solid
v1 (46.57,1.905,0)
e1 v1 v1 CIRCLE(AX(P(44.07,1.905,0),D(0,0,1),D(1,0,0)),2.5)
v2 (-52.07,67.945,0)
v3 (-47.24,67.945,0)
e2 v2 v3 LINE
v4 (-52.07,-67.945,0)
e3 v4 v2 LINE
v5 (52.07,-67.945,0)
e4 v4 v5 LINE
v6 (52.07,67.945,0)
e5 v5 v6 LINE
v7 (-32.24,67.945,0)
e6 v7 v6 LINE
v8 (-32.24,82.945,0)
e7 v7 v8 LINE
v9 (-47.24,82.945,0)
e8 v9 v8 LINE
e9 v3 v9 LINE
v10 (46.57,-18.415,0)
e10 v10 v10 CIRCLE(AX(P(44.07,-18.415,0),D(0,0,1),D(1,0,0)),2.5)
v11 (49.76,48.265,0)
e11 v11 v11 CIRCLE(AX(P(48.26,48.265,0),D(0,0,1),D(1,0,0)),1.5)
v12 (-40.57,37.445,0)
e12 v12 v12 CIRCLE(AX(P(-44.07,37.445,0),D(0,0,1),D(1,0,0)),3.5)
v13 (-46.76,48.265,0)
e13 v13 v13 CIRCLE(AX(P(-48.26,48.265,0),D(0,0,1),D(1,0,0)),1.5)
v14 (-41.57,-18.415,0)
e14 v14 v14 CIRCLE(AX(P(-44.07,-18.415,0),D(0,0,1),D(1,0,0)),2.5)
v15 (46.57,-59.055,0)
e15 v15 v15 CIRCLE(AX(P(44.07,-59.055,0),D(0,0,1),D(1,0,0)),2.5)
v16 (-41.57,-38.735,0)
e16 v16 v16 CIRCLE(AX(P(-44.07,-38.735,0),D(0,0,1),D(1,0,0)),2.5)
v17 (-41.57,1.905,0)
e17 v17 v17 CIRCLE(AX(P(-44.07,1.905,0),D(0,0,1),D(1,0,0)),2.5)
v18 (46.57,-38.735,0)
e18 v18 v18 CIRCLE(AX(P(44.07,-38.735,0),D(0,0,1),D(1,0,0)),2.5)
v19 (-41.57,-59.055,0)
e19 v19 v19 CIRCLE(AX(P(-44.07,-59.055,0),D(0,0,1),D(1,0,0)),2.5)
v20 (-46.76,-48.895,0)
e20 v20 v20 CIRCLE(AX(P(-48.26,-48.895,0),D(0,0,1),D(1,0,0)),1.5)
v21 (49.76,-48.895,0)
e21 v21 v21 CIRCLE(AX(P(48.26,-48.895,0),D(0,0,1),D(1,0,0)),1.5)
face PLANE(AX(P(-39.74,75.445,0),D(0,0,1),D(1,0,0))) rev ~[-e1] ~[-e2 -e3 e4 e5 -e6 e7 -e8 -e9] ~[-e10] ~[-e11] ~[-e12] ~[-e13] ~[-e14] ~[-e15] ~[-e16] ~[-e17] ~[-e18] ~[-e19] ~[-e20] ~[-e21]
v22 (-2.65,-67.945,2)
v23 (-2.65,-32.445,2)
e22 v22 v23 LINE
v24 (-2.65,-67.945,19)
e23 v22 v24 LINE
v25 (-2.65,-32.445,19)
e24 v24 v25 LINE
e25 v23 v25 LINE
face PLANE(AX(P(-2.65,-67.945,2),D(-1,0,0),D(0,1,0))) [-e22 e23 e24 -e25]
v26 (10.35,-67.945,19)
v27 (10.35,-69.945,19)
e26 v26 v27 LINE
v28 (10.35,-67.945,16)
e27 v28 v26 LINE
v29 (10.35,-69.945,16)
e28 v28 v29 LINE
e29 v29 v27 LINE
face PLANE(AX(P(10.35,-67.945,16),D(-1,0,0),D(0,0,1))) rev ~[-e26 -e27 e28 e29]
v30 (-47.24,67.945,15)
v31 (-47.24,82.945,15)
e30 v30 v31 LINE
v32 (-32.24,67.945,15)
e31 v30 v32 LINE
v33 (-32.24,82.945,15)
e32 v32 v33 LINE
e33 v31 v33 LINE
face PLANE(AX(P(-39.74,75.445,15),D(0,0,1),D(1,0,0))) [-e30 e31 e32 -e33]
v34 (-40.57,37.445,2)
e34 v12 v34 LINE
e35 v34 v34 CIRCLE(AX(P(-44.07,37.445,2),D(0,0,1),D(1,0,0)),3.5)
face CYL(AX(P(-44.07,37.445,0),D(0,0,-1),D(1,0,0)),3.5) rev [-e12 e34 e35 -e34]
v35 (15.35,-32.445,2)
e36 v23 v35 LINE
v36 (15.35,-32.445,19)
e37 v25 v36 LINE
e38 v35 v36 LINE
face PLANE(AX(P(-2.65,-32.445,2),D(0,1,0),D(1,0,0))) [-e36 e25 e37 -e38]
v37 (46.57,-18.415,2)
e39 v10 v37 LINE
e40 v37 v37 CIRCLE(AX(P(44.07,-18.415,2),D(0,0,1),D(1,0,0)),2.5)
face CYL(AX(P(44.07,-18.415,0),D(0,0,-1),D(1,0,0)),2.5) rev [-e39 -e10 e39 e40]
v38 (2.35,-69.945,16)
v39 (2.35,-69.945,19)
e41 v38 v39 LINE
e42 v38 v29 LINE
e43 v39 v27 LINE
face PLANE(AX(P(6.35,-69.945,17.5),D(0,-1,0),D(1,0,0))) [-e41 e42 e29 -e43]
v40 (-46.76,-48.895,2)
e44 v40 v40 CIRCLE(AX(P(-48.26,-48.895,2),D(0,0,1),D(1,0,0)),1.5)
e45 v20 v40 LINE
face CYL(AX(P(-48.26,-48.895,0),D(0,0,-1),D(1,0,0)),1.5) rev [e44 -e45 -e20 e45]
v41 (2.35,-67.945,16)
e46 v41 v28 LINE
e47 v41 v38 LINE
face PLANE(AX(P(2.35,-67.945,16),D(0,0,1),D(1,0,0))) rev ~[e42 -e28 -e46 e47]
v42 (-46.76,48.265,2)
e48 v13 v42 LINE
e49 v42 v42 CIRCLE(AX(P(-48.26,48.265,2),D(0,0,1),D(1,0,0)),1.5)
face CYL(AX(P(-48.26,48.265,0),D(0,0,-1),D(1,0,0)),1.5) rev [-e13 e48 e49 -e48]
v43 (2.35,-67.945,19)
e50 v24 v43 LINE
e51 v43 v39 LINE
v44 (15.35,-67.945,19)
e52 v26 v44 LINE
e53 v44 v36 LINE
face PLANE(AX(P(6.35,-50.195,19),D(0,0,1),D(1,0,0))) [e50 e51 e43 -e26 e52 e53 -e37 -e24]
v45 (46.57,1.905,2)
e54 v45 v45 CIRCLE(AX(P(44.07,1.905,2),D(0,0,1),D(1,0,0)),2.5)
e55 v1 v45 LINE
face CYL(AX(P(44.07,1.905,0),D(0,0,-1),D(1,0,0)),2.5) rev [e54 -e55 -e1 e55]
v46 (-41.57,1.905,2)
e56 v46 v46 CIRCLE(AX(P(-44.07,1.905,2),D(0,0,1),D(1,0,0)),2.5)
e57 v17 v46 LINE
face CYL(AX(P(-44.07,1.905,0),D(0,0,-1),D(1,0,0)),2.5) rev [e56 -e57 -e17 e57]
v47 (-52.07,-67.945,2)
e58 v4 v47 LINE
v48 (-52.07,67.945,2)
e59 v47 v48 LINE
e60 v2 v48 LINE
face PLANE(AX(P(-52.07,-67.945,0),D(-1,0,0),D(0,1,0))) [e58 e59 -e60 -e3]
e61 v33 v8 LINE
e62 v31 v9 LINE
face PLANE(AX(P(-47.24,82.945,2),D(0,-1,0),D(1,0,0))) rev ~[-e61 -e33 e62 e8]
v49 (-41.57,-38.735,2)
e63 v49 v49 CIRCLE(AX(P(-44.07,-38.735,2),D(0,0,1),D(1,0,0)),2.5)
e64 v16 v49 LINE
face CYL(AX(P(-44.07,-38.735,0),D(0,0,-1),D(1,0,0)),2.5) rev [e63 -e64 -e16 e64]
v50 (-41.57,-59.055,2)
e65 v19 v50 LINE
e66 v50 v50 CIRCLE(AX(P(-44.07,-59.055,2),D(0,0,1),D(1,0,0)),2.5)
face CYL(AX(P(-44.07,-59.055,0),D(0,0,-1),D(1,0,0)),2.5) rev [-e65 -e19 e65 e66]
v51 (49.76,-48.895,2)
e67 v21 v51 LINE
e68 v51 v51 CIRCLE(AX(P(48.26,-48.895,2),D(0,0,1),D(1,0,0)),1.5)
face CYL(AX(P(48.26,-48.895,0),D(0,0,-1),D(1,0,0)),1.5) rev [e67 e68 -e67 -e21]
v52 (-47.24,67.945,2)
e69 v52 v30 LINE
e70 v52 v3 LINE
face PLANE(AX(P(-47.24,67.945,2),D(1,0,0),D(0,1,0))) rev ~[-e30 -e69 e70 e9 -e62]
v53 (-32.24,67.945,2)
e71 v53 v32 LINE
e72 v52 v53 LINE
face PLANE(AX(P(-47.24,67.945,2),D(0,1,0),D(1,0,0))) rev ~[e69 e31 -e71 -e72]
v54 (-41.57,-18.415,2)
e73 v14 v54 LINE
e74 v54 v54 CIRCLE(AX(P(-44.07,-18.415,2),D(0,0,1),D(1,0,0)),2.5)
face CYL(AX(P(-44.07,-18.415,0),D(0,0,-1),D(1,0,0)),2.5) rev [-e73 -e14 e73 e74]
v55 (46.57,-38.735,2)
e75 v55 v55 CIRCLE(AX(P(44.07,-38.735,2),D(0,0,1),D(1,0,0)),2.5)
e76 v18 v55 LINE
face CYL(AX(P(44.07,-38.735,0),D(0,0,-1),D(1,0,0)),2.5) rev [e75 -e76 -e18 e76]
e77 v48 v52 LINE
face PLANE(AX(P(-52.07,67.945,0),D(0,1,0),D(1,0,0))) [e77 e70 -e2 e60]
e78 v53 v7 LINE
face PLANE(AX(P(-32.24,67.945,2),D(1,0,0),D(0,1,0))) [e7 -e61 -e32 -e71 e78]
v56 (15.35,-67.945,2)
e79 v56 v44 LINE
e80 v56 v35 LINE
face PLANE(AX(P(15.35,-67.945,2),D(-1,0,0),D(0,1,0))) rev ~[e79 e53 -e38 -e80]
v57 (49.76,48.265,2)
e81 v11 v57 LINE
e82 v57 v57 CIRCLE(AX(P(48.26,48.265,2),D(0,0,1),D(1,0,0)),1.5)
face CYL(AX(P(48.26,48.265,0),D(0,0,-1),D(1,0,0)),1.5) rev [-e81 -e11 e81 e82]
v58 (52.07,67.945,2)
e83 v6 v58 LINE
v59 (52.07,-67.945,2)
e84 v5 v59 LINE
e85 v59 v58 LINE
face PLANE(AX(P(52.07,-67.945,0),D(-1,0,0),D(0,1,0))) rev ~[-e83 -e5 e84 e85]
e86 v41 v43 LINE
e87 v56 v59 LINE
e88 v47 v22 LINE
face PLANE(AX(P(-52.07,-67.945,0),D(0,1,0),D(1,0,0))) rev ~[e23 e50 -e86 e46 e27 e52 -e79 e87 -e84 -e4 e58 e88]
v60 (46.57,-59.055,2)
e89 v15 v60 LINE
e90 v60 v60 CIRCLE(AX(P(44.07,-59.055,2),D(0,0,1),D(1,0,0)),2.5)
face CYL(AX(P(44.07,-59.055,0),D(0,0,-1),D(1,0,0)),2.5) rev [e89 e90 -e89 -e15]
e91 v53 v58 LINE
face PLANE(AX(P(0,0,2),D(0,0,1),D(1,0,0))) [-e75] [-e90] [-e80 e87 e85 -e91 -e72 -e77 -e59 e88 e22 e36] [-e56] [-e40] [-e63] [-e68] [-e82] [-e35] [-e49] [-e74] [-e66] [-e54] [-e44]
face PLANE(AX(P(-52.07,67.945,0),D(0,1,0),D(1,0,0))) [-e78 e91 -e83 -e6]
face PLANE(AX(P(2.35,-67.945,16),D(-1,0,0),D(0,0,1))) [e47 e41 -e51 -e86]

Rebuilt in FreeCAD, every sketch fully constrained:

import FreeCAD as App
import Part
import Sketcher
from FreeCAD import Vector

doc = App.newDocument("Part")
params = doc.addObject("Spreadsheet::Sheet", "Params")
for row, (alias, value) in enumerate([
    ("sketch1_diameter", "5 mm"),
    ("sketch1_diameter2", "3 mm"),
    ("sketch1_diameter3", "7 mm"),
    ("sketch1_width", "104.14 mm"),
    ("sketch1_height", "135.89 mm"),
    ("pad1_length", "2 mm"),
    ("sketch2_width", "15 mm"),
    ("pad2_length", "13 mm"),
    ("pad2_length2", "2 mm"),
    ("sketch3_width", "18 mm"),
    ("sketch3_height", "35.5 mm"),
    ("pad3_length", "17 mm"),
    ("sketch4_width", "8 mm"),
    ("sketch4_height", "3 mm"),
    ("pad4_length", "2 mm"),
], start=1):
    params.set(f"A{row}", alias)
    params.set(f"B{row}", "=" + value)
    params.setAlias(f"B{row}", alias)

body = doc.addObject("PartDesign::Body", "Body")

# Sketch on XY plane
sketch1 = body.newObject("Sketcher::SketchObject", "Sketch")
sketch1.AttachmentSupport = (doc.getObject("XY_Plane"), [""])
sketch1.MapMode = "FlatFace"
sketch1.addGeometry([
    Part.LineSegment(Vector(-52.07, 67.945, 0), Vector(-52.07, -67.945, 0)),  # 0
    Part.LineSegment(Vector(-52.07, -67.945, 0), Vector(52.07, -67.945, 0)),  # 1
    Part.LineSegment(Vector(52.07, -67.945, 0), Vector(52.07, 67.945, 0)),  # 2
    Part.LineSegment(Vector(52.07, 67.945, 0), Vector(-52.07, 67.945, 0)),  # 3
    Part.Circle(Vector(-44.07, -59.055, 0), Vector(0, 0, 1), 2.5),  # 4
    Part.Circle(Vector(-48.26, -48.895, 0), Vector(0, 0, 1), 1.5),  # 5
    Part.Circle(Vector(-44.07, -38.735, 0), Vector(0, 0, 1), 2.5),  # 6
    Part.Circle(Vector(-44.07, -18.415, 0), Vector(0, 0, 1), 2.5),  # 7
    Part.Circle(Vector(44.07, -59.055, 0), Vector(0, 0, 1), 2.5),  # 8
    Part.Circle(Vector(48.26, -48.895, 0), Vector(0, 0, 1), 1.5),  # 9
    Part.Circle(Vector(44.07, -38.735, 0), Vector(0, 0, 1), 2.5),  # 10
    Part.Circle(Vector(44.07, -18.415, 0), Vector(0, 0, 1), 2.5),  # 11
    Part.Circle(Vector(-44.07, 1.905, 0), Vector(0, 0, 1), 2.5),  # 12
    Part.Circle(Vector(-44.07, 37.445, 0), Vector(0, 0, 1), 3.5),  # 13
    Part.Circle(Vector(-48.26, 48.265, 0), Vector(0, 0, 1), 1.5),  # 14
    Part.Circle(Vector(44.07, 1.905, 0), Vector(0, 0, 1), 2.5),  # 15
    Part.Circle(Vector(48.26, 48.265, 0), Vector(0, 0, 1), 1.5),  # 16
], False)
sketch1.addConstraint([
    Sketcher.Constraint("Coincident", 0, 2, 1, 1),
    Sketcher.Constraint("Coincident", 1, 2, 2, 1),
    Sketcher.Constraint("Coincident", 2, 2, 3, 1),
    Sketcher.Constraint("Coincident", 3, 2, 0, 1),
    Sketcher.Constraint("Vertical", 0),
    Sketcher.Constraint("Horizontal", 1),
    Sketcher.Constraint("Vertical", 2),
    Sketcher.Constraint("Horizontal", 3),
    Sketcher.Constraint("Equal", 4, 6),
    Sketcher.Constraint("Equal", 6, 7),
    Sketcher.Constraint("Equal", 7, 8),
    Sketcher.Constraint("Equal", 5, 9),
    Sketcher.Constraint("Equal", 8, 10),
    Sketcher.Constraint("Equal", 10, 11),
    Sketcher.Constraint("Equal", 11, 12),
    Sketcher.Constraint("Equal", 9, 14),
    Sketcher.Constraint("Equal", 12, 15),
    Sketcher.Constraint("Equal", 14, 16),
    Sketcher.Constraint("Symmetric", 0, 2, 2, 2, -1, 1),
    Sketcher.Constraint("Symmetric", 4, 3, 8, 3, -2),
    Sketcher.Constraint("Symmetric", 5, 3, 9, 3, -2),
    Sketcher.Constraint("Symmetric", 6, 3, 10, 3, -2),
    Sketcher.Constraint("Symmetric", 7, 3, 11, 3, -2),
    Sketcher.Constraint("Symmetric", 12, 3, 15, 3, -2),
    Sketcher.Constraint("Symmetric", 14, 3, 16, 3, -2),
    Sketcher.Constraint("Vertical", 4, 3, 6, 3),
    Sketcher.Constraint("Vertical", 6, 3, 7, 3),
    Sketcher.Constraint("Vertical", 7, 3, 12, 3),
    Sketcher.Constraint("Vertical", 12, 3, 13, 3),
    Sketcher.Constraint("Vertical", 5, 3, 14, 3),
    Sketcher.Constraint("Diameter", 4, 5.0),
    Sketcher.Constraint("Diameter", 5, 3.0),
    Sketcher.Constraint("Diameter", 13, 7.0),
    Sketcher.Constraint("DistanceY", 6, 3, 14, 3, 87.0),
    Sketcher.Constraint("DistanceX", 0, 2, 4, 3, 8.0),
    Sketcher.Constraint("DistanceX", 1, 1, 1, 2, 104.14),
    Sketcher.Constraint("DistanceY", 0, 2, 0, 1, 135.89),
    Sketcher.Constraint("DistanceY", 5, 3, 12, 3, 50.8),
    Sketcher.Constraint("DistanceY", 4, 3, 13, 3, 96.5),
    Sketcher.Constraint("DistanceY", 13, 3, 2, 2, 30.5),
    Sketcher.Constraint("DistanceX", 5, 3, -1, 1, 48.26),
    Sketcher.Constraint("DistanceY", 4, 3, 5, 3, 10.16),
    Sketcher.Constraint("DistanceY", 5, 3, 6, 3, 10.16),
    Sketcher.Constraint("DistanceY", 6, 3, 7, 3, 20.32),
])
sketch1.setExpression("Constraints[30]", "Params.sketch1_diameter")
sketch1.setExpression("Constraints[31]", "Params.sketch1_diameter2")
sketch1.setExpression("Constraints[32]", "Params.sketch1_diameter3")
sketch1.setExpression("Constraints[35]", "Params.sketch1_width")
sketch1.setExpression("Constraints[36]", "Params.sketch1_height")
pad1 = body.newObject("PartDesign::Pad", "Pad")
pad1.Profile = sketch1
pad1.setExpression("Length", "Params.pad1_length")

# Sketch on XY plane
sketch2 = body.newObject("Sketcher::SketchObject", "Sketch001")
sketch2.AttachmentSupport = (doc.getObject("XY_Plane"), [""])
sketch2.MapMode = "FlatFace"
sketch2.AttachmentOffset = App.Placement(Vector(0, 0, 2), App.Rotation())
sketch2.addGeometry([
    Part.LineSegment(Vector(-47.24, 82.945, 0), Vector(-47.24, 67.945, 0)),
    Part.LineSegment(Vector(-47.24, 67.945, 0), Vector(-32.24, 67.945, 0)),
    Part.LineSegment(Vector(-32.24, 67.945, 0), Vector(-32.24, 82.945, 0)),
    Part.LineSegment(Vector(-32.24, 82.945, 0), Vector(-47.24, 82.945, 0)),
], False)
sketch2.addConstraint([
    Sketcher.Constraint("Coincident", 0, 2, 1, 1),
    Sketcher.Constraint("Coincident", 1, 2, 2, 1),
    Sketcher.Constraint("Coincident", 2, 2, 3, 1),
    Sketcher.Constraint("Coincident", 3, 2, 0, 1),
    Sketcher.Constraint("Vertical", 0),
    Sketcher.Constraint("Horizontal", 1),
    Sketcher.Constraint("Vertical", 2),
    Sketcher.Constraint("Horizontal", 3),
    Sketcher.Constraint("Equal", 3, 0),
    Sketcher.Constraint("DistanceX", 1, 1, 1, 2, 15.0),
    Sketcher.Constraint("DistanceX", 0, 2, -1, 1, 47.24),
    Sketcher.Constraint("DistanceY", -1, 1, 0, 2, 67.945),
])
sketch2.setExpression("Constraints[9]", "Params.sketch2_width")
pad2 = body.newObject("PartDesign::Pad", "Pad001")
pad2.Profile = sketch2
pad2.Type = "TwoLengths"
pad2.setExpression("Length", "Params.pad2_length")
pad2.setExpression("Length2", "Params.pad2_length2")

# Sketch on XY plane
sketch3 = body.newObject("Sketcher::SketchObject", "Sketch002")
sketch3.AttachmentSupport = (doc.getObject("XY_Plane"), [""])
sketch3.MapMode = "FlatFace"
sketch3.AttachmentOffset = App.Placement(Vector(0, 0, 2), App.Rotation())
sketch3.addGeometry([
    Part.LineSegment(Vector(-2.65, -32.445, 0), Vector(-2.65, -67.945, 0)),
    Part.LineSegment(Vector(-2.65, -67.945, 0), Vector(15.35, -67.945, 0)),
    Part.LineSegment(Vector(15.35, -67.945, 0), Vector(15.35, -32.445, 0)),
    Part.LineSegment(Vector(15.35, -32.445, 0), Vector(-2.65, -32.445, 0)),
], False)
sketch3.addConstraint([
    Sketcher.Constraint("Coincident", 0, 2, 1, 1),
    Sketcher.Constraint("Coincident", 1, 2, 2, 1),
    Sketcher.Constraint("Coincident", 2, 2, 3, 1),
    Sketcher.Constraint("Coincident", 3, 2, 0, 1),
    Sketcher.Constraint("Vertical", 0),
    Sketcher.Constraint("Horizontal", 1),
    Sketcher.Constraint("Vertical", 2),
    Sketcher.Constraint("Horizontal", 3),
    Sketcher.Constraint("DistanceX", 1, 1, 1, 2, 18.0),
    Sketcher.Constraint("DistanceY", 0, 2, 0, 1, 35.5),
    Sketcher.Constraint("DistanceX", 0, 2, -1, 1, 2.65),
    Sketcher.Constraint("DistanceY", 0, 2, -1, 1, 67.945),
])
sketch3.setExpression("Constraints[8]", "Params.sketch3_width")
sketch3.setExpression("Constraints[9]", "Params.sketch3_height")
pad3 = body.newObject("PartDesign::Pad", "Pad002")
pad3.Profile = sketch3
pad3.setExpression("Length", "Params.pad3_length")

# Sketch on XZ plane
sketch4 = body.newObject("Sketcher::SketchObject", "Sketch003")
sketch4.AttachmentSupport = (doc.getObject("XZ_Plane"), [""])
sketch4.MapMode = "FlatFace"
sketch4.AttachmentOffset = App.Placement(Vector(0, 0, 67.945), App.Rotation())
sketch4.addGeometry([
    Part.LineSegment(Vector(2.35, 19, 0), Vector(2.35, 16, 0)),
    Part.LineSegment(Vector(2.35, 16, 0), Vector(10.35, 16, 0)),
    Part.LineSegment(Vector(10.35, 16, 0), Vector(10.35, 19, 0)),
    Part.LineSegment(Vector(10.35, 19, 0), Vector(2.35, 19, 0)),
], False)
sketch4.addConstraint([
    Sketcher.Constraint("Coincident", 0, 2, 1, 1),
    Sketcher.Constraint("Coincident", 1, 2, 2, 1),
    Sketcher.Constraint("Coincident", 2, 2, 3, 1),
    Sketcher.Constraint("Coincident", 3, 2, 0, 1),
    Sketcher.Constraint("Vertical", 0),
    Sketcher.Constraint("Horizontal", 1),
    Sketcher.Constraint("Vertical", 2),
    Sketcher.Constraint("Horizontal", 3),
    Sketcher.Constraint("DistanceX", 1, 1, 1, 2, 8.0),
    Sketcher.Constraint("DistanceY", 0, 2, 0, 1, 3.0),
    Sketcher.Constraint("DistanceY", -1, 1, 0, 2, 16.0),
    Sketcher.Constraint("DistanceX", -1, 1, 0, 2, 2.35),
])
sketch4.setExpression("Constraints[8]", "Params.sketch4_width")
sketch4.setExpression("Constraints[9]", "Params.sketch4_height")
pad4 = body.newObject("PartDesign::Pad", "Pad003")
pad4.Profile = sketch4
pad4.setExpression("Length", "Params.pad4_length")

doc.recompute()
